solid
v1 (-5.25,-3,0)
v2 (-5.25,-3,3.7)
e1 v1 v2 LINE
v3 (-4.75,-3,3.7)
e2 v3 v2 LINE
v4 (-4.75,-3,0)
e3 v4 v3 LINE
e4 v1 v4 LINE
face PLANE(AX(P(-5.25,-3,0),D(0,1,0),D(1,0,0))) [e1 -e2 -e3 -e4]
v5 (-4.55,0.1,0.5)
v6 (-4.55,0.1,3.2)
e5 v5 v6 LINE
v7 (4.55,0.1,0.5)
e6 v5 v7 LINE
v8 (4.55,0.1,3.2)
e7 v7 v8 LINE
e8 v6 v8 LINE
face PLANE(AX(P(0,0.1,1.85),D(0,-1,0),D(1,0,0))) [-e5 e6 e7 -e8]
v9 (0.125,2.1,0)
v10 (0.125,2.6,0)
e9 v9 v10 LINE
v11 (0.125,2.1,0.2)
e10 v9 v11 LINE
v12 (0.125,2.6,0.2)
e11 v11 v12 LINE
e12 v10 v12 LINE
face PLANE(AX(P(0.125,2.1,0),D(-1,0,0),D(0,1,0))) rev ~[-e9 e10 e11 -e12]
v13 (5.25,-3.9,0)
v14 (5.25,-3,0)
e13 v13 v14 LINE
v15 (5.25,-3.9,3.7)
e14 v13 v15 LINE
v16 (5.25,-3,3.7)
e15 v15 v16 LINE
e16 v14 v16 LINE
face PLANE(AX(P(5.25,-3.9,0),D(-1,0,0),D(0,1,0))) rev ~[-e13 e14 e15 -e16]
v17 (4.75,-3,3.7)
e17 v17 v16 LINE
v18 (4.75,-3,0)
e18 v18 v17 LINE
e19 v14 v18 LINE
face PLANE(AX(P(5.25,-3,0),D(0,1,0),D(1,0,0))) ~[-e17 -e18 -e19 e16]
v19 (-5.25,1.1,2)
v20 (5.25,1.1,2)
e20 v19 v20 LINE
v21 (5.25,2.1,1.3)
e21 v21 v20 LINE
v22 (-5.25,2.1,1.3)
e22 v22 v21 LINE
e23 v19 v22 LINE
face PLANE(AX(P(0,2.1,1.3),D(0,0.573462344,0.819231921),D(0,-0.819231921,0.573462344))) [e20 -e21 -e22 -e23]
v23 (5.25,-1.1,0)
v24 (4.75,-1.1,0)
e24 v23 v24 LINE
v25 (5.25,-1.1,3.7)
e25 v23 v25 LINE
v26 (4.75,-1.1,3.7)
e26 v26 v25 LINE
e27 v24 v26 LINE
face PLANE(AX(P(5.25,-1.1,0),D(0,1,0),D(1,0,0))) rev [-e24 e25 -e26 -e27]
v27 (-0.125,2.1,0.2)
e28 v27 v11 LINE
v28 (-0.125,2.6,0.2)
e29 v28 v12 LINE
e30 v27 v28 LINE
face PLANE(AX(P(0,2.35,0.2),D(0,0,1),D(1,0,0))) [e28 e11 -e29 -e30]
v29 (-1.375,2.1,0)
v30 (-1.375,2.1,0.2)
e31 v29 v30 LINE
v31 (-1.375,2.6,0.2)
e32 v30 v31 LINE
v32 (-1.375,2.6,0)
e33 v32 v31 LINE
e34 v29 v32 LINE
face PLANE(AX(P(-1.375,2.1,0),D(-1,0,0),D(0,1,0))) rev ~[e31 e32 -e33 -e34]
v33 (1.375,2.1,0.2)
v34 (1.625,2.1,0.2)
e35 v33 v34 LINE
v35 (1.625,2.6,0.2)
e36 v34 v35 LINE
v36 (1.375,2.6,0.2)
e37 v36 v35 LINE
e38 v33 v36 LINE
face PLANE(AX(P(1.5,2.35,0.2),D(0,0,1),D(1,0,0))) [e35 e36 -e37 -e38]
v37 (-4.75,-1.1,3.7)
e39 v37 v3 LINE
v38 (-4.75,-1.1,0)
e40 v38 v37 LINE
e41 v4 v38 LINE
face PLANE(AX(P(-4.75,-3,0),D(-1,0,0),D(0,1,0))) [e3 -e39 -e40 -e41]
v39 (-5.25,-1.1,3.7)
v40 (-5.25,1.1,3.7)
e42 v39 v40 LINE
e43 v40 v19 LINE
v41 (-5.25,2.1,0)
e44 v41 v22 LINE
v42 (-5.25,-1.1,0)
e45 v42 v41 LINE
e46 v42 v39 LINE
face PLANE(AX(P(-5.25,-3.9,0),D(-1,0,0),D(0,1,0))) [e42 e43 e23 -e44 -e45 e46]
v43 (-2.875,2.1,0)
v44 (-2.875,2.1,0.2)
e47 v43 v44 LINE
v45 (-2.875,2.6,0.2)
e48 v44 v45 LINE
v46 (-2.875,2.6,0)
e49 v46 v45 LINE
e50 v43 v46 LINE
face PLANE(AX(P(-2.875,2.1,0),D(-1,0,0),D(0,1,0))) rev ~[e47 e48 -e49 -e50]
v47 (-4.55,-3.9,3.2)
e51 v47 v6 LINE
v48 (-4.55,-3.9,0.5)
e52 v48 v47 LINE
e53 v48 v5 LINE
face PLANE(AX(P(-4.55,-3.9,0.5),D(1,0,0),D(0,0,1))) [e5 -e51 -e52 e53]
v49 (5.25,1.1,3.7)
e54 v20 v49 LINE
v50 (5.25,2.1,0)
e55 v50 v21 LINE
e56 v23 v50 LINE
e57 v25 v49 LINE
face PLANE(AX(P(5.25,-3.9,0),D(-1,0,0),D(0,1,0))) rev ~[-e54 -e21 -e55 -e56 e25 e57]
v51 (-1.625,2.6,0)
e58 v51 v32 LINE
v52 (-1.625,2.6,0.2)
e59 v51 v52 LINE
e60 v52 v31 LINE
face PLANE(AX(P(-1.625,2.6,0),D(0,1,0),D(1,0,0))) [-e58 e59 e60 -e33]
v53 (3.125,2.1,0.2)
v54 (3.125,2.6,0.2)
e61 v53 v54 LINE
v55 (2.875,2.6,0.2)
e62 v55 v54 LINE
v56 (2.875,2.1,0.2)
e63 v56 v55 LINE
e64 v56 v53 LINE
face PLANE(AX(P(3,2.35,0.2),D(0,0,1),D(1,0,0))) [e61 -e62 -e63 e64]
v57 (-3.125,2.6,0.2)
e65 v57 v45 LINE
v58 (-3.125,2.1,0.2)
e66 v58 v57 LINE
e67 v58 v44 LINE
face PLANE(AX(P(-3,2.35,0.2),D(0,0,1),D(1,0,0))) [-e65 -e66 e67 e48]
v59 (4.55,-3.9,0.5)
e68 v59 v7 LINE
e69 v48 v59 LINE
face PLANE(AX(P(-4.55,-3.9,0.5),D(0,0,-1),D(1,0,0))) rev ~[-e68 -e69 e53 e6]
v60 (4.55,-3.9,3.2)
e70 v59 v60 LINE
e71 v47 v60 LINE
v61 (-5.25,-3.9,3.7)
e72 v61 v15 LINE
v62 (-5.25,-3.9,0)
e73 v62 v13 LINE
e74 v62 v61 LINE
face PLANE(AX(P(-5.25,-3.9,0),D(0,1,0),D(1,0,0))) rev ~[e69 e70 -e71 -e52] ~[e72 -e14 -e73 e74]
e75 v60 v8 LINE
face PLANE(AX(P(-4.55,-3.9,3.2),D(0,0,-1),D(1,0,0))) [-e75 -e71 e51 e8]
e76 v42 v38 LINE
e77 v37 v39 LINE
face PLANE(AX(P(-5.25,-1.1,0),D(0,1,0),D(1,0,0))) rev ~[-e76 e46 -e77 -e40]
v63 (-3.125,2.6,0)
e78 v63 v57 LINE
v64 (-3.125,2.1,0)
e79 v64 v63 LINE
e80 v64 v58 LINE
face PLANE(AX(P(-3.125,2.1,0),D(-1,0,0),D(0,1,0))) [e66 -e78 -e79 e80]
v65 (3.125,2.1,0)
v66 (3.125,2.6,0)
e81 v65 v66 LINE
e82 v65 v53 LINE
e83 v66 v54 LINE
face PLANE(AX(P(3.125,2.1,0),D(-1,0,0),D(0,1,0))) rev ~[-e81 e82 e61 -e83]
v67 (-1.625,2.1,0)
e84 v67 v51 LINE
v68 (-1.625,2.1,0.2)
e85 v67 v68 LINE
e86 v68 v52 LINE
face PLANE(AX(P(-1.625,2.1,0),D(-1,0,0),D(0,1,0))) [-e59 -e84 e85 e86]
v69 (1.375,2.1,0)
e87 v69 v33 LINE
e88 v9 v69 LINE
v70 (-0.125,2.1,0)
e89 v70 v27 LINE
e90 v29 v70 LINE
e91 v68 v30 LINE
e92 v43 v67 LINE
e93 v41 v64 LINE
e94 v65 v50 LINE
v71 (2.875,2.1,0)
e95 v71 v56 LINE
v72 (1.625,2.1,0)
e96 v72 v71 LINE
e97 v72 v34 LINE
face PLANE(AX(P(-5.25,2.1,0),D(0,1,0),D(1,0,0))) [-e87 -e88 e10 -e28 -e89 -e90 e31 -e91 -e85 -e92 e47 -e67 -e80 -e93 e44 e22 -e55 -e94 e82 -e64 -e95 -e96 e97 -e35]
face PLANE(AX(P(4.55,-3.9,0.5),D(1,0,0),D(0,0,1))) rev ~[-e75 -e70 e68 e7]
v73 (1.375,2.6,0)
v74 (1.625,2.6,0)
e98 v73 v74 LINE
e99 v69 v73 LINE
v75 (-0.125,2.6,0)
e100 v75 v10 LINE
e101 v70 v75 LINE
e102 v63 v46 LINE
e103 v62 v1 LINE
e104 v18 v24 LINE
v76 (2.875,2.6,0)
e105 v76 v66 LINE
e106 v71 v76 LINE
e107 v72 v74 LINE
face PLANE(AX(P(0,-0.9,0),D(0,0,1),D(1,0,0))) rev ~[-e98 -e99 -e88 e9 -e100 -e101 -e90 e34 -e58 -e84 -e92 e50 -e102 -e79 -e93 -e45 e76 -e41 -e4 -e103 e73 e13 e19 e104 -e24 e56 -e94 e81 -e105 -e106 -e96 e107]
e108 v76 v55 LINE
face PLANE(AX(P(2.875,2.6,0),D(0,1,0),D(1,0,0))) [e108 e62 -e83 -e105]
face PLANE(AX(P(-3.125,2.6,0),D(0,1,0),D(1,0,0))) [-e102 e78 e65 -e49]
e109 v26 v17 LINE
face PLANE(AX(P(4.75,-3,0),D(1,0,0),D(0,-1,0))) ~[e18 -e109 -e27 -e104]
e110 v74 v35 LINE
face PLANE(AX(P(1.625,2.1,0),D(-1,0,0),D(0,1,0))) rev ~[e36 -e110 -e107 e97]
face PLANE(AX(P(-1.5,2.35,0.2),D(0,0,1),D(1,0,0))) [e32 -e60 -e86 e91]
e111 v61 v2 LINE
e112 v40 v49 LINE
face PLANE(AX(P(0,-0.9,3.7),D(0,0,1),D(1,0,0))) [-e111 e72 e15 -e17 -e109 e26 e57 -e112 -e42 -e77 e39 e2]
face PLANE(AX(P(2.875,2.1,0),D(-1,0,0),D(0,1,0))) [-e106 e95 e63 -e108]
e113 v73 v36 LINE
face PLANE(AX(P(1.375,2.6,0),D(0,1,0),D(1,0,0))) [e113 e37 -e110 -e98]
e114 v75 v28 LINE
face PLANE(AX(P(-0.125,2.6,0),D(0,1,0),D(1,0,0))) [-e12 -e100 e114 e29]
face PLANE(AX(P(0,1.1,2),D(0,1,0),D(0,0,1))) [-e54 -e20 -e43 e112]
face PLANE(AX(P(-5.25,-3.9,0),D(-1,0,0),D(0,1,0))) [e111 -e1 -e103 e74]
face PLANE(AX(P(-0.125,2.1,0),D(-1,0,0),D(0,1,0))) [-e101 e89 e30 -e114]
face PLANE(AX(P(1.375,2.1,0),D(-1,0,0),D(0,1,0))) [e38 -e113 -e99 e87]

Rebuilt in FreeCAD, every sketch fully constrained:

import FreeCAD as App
import Part
import Sketcher

V = App.Vector
Q = App.Units.Quantity

doc = App.newDocument("Part")
params = doc.addObject("Spreadsheet::Sheet", "Params")
for row, (alias, value) in enumerate([
    ("sketch1_height", "6 mm"),
    ("sketch1_width", "10.5 mm"),
    ("pad1_length", "3.7 mm"),
    ("sketch2_height", "0.5 mm"),
    ("sketch2_width", "0.25 mm"),
    ("pad2_length", "0.2 mm"),
    ("linearpattern_pitch", "1.5 mm"),
    ("sketch3_width", "1 mm"),
    ("sketch3_height", "1.7 mm"),
    ("sketch3_height2", "2.4 mm"),
    ("sketch4_width", "0.5 mm"),
    ("sketch4_height", "1.9 mm"),
    ("sketch5_width", "9.1 mm"),
    ("sketch5_height", "2.7 mm"),
    ("pocket3_length", "4 mm"),
], start=1):
    params.set(f"A{row}", alias)
    params.set(f"B{row}", "=" + value)
    params.setAlias(f"B{row}", alias)

body = doc.addObject("PartDesign::Body", "Body")

# Sketch on XY plane
sketch1 = doc.addObject("Sketcher::SketchObject", "Sketch")
body.addObject(sketch1)
sketch1.AttachmentSupport = (doc.XY_Plane, [""])
sketch1.MapMode = "FlatFace"
sketch1.addGeometry([
    Part.LineSegment(V(-5, 2, 0), V(-5, -4, 0)),
    Part.LineSegment(V(-5, -4, 0), V(5, -4, 0)),
    Part.LineSegment(V(5, -4, 0), V(5, 2, 0)),
    Part.LineSegment(V(5, 2, 0), V(-5, 2, 0)),
], False)
sketch1.addConstraint([
    Sketcher.Constraint("Coincident", 0, 2, 1, 1),
    Sketcher.Constraint("Coincident", 1, 2, 2, 1),
    Sketcher.Constraint("Coincident", 2, 2, 3, 1),
    Sketcher.Constraint("Coincident", 3, 2, 0, 1),
    Sketcher.Constraint("Vertical", 0),
    Sketcher.Constraint("Horizontal", 1),
    Sketcher.Constraint("Vertical", 2),
    Sketcher.Constraint("Horizontal", 3),
    Sketcher.Constraint("DistanceY", 0, 2, 0, 1, Q("6 mm")),
    Sketcher.Constraint("DistanceX", 1, 1, 1, 2, Q("10.5 mm")),
    Sketcher.Constraint("DistanceY", 0, 2, -1, 1, Q("3.9 mm")),
    Sketcher.Constraint("DistanceX", 0, 2, -1, 1, Q("5.25 mm")),
])
sketch1.setExpression("Constraints[8]", "Params.sketch1_height")
sketch1.setExpression("Constraints[9]", "Params.sketch1_width")
pad1 = doc.addObject("PartDesign::Pad", "Pad")
body.addObject(pad1)
pad1.Profile = sketch1
pad1.setExpression("Length", "Params.pad1_length")

# Sketch on XY plane
sketch2 = doc.addObject("Sketcher::SketchObject", "Sketch001")
body.addObject(sketch2)
sketch2.AttachmentSupport = (doc.XY_Plane, [""])
sketch2.MapMode = "FlatFace"
sketch2.addGeometry([
    Part.LineSegment(V(-3.12, 2.6, 0), V(-3.12, 2.1, 0)),
    Part.LineSegment(V(-3.12, 2.1, 0), V(-2.88, 2.1, 0)),
    Part.LineSegment(V(-2.88, 2.1, 0), V(-2.88, 2.6, 0)),
    Part.LineSegment(V(-2.88, 2.6, 0), V(-3.12, 2.6, 0)),
], False)
sketch2.addConstraint([
    Sketcher.Constraint("Coincident", 0, 2, 1, 1),
    Sketcher.Constraint("Coincident", 1, 2, 2, 1),
    Sketcher.Constraint("Coincident", 2, 2, 3, 1),
    Sketcher.Constraint("Coincident", 3, 2, 0, 1),
    Sketcher.Constraint("Vertical", 0),
    Sketcher.Constraint("Horizontal", 1),
    Sketcher.Constraint("Vertical", 2),
    Sketcher.Constraint("Horizontal", 3),
    Sketcher.Constraint("DistanceY", 0, 2, 0, 1, Q("0.5 mm")),
    Sketcher.Constraint("DistanceX", 1, 1, 1, 2, Q("0.25 mm")),
    Sketcher.Constraint("DistanceY", -1, 1, 0, 2, Q("2.1 mm")),
    Sketcher.Constraint("DistanceX", 0, 2, -1, 1, Q("3.125 mm")),
])
sketch2.setExpression("Constraints[8]", "Params.sketch2_height")
sketch2.setExpression("Constraints[9]", "Params.sketch2_width")
pad2 = doc.addObject("PartDesign::Pad", "Pad001")
body.addObject(pad2)
pad2.Profile = sketch2
pad2.setExpression("Length", "Params.pad2_length")
doc.recompute()

linearpattern = doc.addObject("PartDesign::LinearPattern", "LinearPattern")
body.addObject(linearpattern)
linearpattern.Originals = [pad2]
linearpattern.Direction = (doc.X_Axis, [""])
linearpattern.Mode = "offset"
linearpattern.setExpression("Offset", "Params.linearpattern_pitch")
linearpattern.Occurrences = 5
body.Tip = linearpattern

# Sketch on YZ plane
sketch3 = doc.addObject("Sketcher::SketchObject", "Sketch002")
body.addObject(sketch3)
sketch3.AttachmentSupport = (doc.YZ_Plane, [""])
sketch3.MapMode = "FlatFace"
sketch3.addGeometry([
    Part.LineSegment(V(2.1, 3.7, 0), V(1.1, 3.7, 0)),
    Part.LineSegment(V(1.1, 3.7, 0), V(1.1, 2, 0)),
    Part.LineSegment(V(1.1, 2, 0), V(2.1, 1.3, 0)),
    Part.LineSegment(V(2.1, 1.3, 0), V(2.1, 3.7, 0)),
], False)
sketch3.addConstraint([
    Sketcher.Constraint("Coincident", 0, 2, 1, 1),
    Sketcher.Constraint("Coincident", 1, 2, 2, 1),
    Sketcher.Constraint("Coincident", 2, 2, 3, 1),
    Sketcher.Constraint("Coincident", 3, 2, 0, 1),
    Sketcher.Constraint("Horizontal", 0),
    Sketcher.Constraint("Vertical", 1),
    Sketcher.Constraint("Vertical", 3),
    Sketcher.Constraint("DistanceX", 0, 2, 0, 1, Q("1 mm")),
    Sketcher.Constraint("DistanceY", 1, 2, 1, 1, Q("1.7 mm")),
    Sketcher.Constraint("DistanceY", 3, 1, 3, 2, Q("2.4 mm")),
    Sketcher.Constraint("DistanceY", -1, 1, 1, 2, Q("2 mm")),
    Sketcher.Constraint("DistanceX", -1, 1, 0, 2, Q("1.1 mm")),
])
sketch3.setExpression("Constraints[7]", "Params.sketch3_width")
sketch3.setExpression("Constraints[8]", "Params.sketch3_height")
sketch3.setExpression("Constraints[9]", "Params.sketch3_height2")
pocket1 = doc.addObject("PartDesign::Pocket", "Pocket")
body.addObject(pocket1)
pocket1.Profile = sketch3
pocket1.Type = "ThroughAll"
pocket1.Midplane = True

# Sketch on XY plane
sketch4 = doc.addObject("Sketcher::SketchObject", "Sketch003")
body.addObject(sketch4)
sketch4.AttachmentSupport = (doc.XY_Plane, [""])
sketch4.MapMode = "FlatFace"
sketch4.addGeometry([
    Part.LineSegment(V(-5.2, -1.1, 0), V(-5.2, -3, 0)),
    Part.LineSegment(V(-5.2, -3, 0), V(-4.8, -3, 0)),
    Part.LineSegment(V(-4.8, -3, 0), V(-4.8, -1.1, 0)),
    Part.LineSegment(V(-4.8, -1.1, 0), V(-5.2, -1.1, 0)),
], False)
sketch4.addConstraint([
    Sketcher.Constraint("Coincident", 0, 2, 1, 1),
    Sketcher.Constraint("Coincident", 1, 2, 2, 1),
    Sketcher.Constraint("Coincident", 2, 2, 3, 1),
    Sketcher.Constraint("Coincident", 3, 2, 0, 1),
    Sketcher.Constraint("Vertical", 0),
    Sketcher.Constraint("Horizontal", 1),
    Sketcher.Constraint("Vertical", 2),
    Sketcher.Constraint("Horizontal", 3),
    Sketcher.Constraint("DistanceX", 1, 1, 1, 2, Q("0.5 mm")),
    Sketcher.Constraint("DistanceY", 0, 2, 0, 1, Q("1.9 mm")),
    Sketcher.Constraint("DistanceY", 0, 2, -1, 1, Q("3 mm")),
    Sketcher.Constraint("DistanceX", 0, 2, -1, 1, Q("5.25 mm")),
])
sketch4.setExpression("Constraints[8]", "Params.sketch4_width")
sketch4.setExpression("Constraints[9]", "Params.sketch4_height")
pocket2 = doc.addObject("PartDesign::Pocket", "Pocket001")
body.addObject(pocket2)
pocket2.Profile = sketch4
pocket2.Type = "ThroughAll"
pocket2.Reversed = True
doc.recompute()

mirrored = doc.addObject("PartDesign::Mirrored", "Mirrored")
body.addObject(mirrored)
mirrored.Originals = [pocket2]
mirrored.MirrorPlane = (doc.YZ_Plane, [""])
body.Tip = mirrored

# Sketch on XZ plane
sketch5 = doc.addObject("Sketcher::SketchObject", "Sketch004")
body.addObject(sketch5)
sketch5.AttachmentSupport = (doc.XZ_Plane, [""])
sketch5.MapMode = "FlatFace"
sketch5.AttachmentOffset = App.Placement(V(0, 0, 3.9), App.Rotation())
sketch5.addGeometry([
    Part.LineSegment(V(-4.5, 3.2, 0), V(-4.5, 0.5, 0)),
    Part.LineSegment(V(-4.5, 0.5, 0), V(4.5, 0.5, 0)),
    Part.LineSegment(V(4.5, 0.5, 0), V(4.5, 3.2, 0)),
    Part.LineSegment(V(4.5, 3.2, 0), V(-4.5, 3.2, 0)),
], False)
sketch5.addConstraint([
    Sketcher.Constraint("Coincident", 0, 2, 1, 1),
    Sketcher.Constraint("Coincident", 1, 2, 2, 1),
    Sketcher.Constraint("Coincident", 2, 2, 3, 1),
    Sketcher.Constraint("Coincident", 3, 2, 0, 1),
    Sketcher.Constraint("Vertical", 0),
    Sketcher.Constraint("Horizontal", 1),
    Sketcher.Constraint("Vertical", 2),
    Sketcher.Constraint("Horizontal", 3),
    Sketcher.Constraint("DistanceX", 1, 1, 1, 2, Q("9.1 mm")),
    Sketcher.Constraint("DistanceY", 0, 2, 0, 1, Q("2.7 mm")),
    Sketcher.Constraint("DistanceY", -1, 1, 0, 2, Q("0.5 mm")),
    Sketcher.Constraint("DistanceX", 0, 2, -1, 1, Q("4.55 mm")),
])
sketch5.setExpression("Constraints[8]", "Params.sketch5_width")
sketch5.setExpression("Constraints[9]", "Params.sketch5_height")
pocket3 = doc.addObject("PartDesign::Pocket", "Pocket002")
body.addObject(pocket3)
pocket3.Profile = sketch5
pocket3.setExpression("Length", "Params.pocket3_length")

doc.recompute()
